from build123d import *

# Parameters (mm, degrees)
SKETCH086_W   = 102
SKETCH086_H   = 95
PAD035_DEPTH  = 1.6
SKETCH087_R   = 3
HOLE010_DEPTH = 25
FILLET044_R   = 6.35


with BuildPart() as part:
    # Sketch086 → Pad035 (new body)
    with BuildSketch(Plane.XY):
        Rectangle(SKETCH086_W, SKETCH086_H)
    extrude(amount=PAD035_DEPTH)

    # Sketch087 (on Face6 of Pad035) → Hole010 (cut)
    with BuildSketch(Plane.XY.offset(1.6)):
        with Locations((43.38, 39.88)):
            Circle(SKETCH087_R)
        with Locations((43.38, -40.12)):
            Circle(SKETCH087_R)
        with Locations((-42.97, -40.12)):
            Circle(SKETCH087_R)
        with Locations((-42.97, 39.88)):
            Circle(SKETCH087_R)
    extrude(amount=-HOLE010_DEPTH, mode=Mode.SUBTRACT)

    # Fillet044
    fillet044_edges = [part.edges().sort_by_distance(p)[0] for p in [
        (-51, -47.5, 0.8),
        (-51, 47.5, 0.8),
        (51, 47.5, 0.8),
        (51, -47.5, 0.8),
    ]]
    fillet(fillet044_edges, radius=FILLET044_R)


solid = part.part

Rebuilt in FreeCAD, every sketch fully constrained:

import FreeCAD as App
import Part
import Sketcher


def edges_at(feature, points):
    """Names of the edges that pass closest to the given points."""
    edges = feature.Shape.Edges
    near = lambda p: min(range(len(edges)), key=lambda i: edges[i].distToShape(Part.Vertex(*p))[0])
    return sorted({f"Edge{near(p) + 1}" for p in points})

doc = App.newDocument("Part")
body = doc.addObject("PartDesign::Body", "Body")

sketch1 = body.newObject("Sketcher::SketchObject", "Sketch")
sketch1.AttachmentSupport = (doc.getObject("XY_Plane"), [""])
sketch1.MapMode = "FlatFace"
sketch1.addGeometry([
    Part.LineSegment(App.Vector(-51, 48, 0), App.Vector(-51, -48, 0)),
    Part.LineSegment(App.Vector(-51, -48, 0), App.Vector(51, -48, 0)),
    Part.LineSegment(App.Vector(51, -48, 0), App.Vector(51, 48, 0)),
    Part.LineSegment(App.Vector(51, 48, 0), App.Vector(-51, 48, 0)),
], False)
sketch1.addConstraint([
    Sketcher.Constraint("Coincident", 0, 2, 1, 1),
    Sketcher.Constraint("Coincident", 1, 2, 2, 1),
    Sketcher.Constraint("Coincident", 2, 2, 3, 1),
    Sketcher.Constraint("Coincident", 3, 2, 0, 1),
    Sketcher.Constraint("Vertical", 0),
    Sketcher.Constraint("Horizontal", 1),
    Sketcher.Constraint("Vertical", 2),
    Sketcher.Constraint("Horizontal", 3),
    Sketcher.Constraint("Symmetric", 0, 2, 2, 2, -1, 1),
    Sketcher.Constraint("DistanceX", 1, 1, 1, 2, 102.0),
    Sketcher.Constraint("DistanceY", 0, 2, 0, 1, 95.0),
])
pad1 = body.newObject("PartDesign::Pad", "Pad")
pad1.Profile = sketch1
pad1.Length = 1.6

sketch2 = body.newObject("Sketcher::SketchObject", "Sketch001")
sketch2.AttachmentSupport = (doc.getObject("XY_Plane"), [""])
sketch2.MapMode = "FlatFace"
sketch2.AttachmentOffset = App.Placement(App.Vector(0, 0, 1.6), App.Rotation())
sketch2.addGeometry([
    Part.Circle(App.Vector(43.4, 39.9, 0), App.Vector(0, 0, 1), 3),
    Part.Circle(App.Vector(43.4, -40.1, 0), App.Vector(0, 0, 1), 3),
    Part.Circle(App.Vector(-43, -40.1, 0), App.Vector(0, 0, 1), 3),
    Part.Circle(App.Vector(-43, 39.9, 0), App.Vector(0, 0, 1), 3),
], False)
sketch2.addConstraint([
    Sketcher.Constraint("Equal", 0, 1),
    Sketcher.Constraint("Equal", 1, 2),
    Sketcher.Constraint("Equal", 2, 3),
    Sketcher.Constraint("Horizontal", 1, 3, 2, 3),
    Sketcher.Constraint("Horizontal", 0, 3, 3, 3),
    Sketcher.Constraint("Vertical", 0, 3, 1, 3),
    Sketcher.Constraint("Vertical", 2, 3, 3, 3),
    Sketcher.Constraint("Diameter", 0, 6.0),
    Sketcher.Constraint("DistanceY", 1, 3, 0, 3, 80.0),
    Sketcher.Constraint("DistanceX", -1, 1, 0, 3, 43.38),
    Sketcher.Constraint("DistanceY", -1, 1, 0, 3, 39.88),
    Sketcher.Constraint("DistanceX", 2, 3, -1, 1, 42.97),
])
pocket1 = body.newObject("PartDesign::Pocket", "Pocket")
pocket1.Profile = sketch2
pocket1.Length = 25
doc.recompute()

fillet = body.newObject("PartDesign::Fillet", "Fillet")
fillet.Base = (pocket1, edges_at(pocket1, [
    (-51, -47.5, 0.8),
    (-51, 47.5, 0.8),
    (51, 47.5, 0.8),
    (51, -47.5, 0.8),
]))
fillet.Radius = 6.35

doc.recompute()
